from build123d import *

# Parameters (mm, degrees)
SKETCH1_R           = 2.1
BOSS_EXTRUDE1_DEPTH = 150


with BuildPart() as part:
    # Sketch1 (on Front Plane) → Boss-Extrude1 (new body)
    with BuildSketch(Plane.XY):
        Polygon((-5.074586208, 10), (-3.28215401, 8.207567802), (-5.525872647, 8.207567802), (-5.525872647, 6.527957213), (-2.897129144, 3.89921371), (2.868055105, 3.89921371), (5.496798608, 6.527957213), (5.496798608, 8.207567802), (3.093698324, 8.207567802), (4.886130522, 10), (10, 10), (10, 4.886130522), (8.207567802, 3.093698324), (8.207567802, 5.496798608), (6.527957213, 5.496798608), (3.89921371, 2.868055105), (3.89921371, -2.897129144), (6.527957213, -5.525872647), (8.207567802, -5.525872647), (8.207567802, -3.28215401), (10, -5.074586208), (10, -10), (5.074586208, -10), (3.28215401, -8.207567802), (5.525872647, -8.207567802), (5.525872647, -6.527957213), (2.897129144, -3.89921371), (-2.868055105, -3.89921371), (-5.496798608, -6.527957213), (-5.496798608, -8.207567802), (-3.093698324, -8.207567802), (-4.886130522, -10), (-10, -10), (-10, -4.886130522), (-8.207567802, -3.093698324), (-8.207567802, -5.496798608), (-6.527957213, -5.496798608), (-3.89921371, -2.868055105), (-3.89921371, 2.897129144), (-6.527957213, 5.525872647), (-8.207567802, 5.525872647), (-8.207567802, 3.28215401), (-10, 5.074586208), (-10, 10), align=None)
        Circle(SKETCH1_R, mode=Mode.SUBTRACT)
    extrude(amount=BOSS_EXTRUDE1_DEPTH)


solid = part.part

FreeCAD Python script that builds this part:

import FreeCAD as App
import Part
import Sketcher

doc = App.newDocument("Part")
body = doc.addObject("PartDesign::Body", "Body")

# Sketch on XY plane
sketch1 = body.newObject("Sketcher::SketchObject", "Sketch")
sketch1.AttachmentSupport = (doc.getObject("XY_Plane"), [""])
sketch1.MapMode = "FlatFace"
sketch1.addGeometry(Part.LineSegment(App.Vector(-3.3, 8.2, 0), App.Vector(-5.1, 10, 0)), False)
sketch1.addGeometry(Part.LineSegment(App.Vector(-5.1, 10, 0), App.Vector(-10, 10, 0)), False)
sketch1.addGeometry(Part.LineSegment(App.Vector(-10, 10, 0), App.Vector(-10, 5.1, 0)), False)
sketch1.addGeometry(Part.LineSegment(App.Vector(-10, 5.1, 0), App.Vector(-8.2, 3.3, 0)), False)
sketch1.addGeometry(Part.LineSegment(App.Vector(-8.2, 3.3, 0), App.Vector(-8.2, 5.5, 0)), False)
sketch1.addGeometry(Part.LineSegment(App.Vector(-8.2, 5.5, 0), App.Vector(-6.5, 5.5, 0)), False)
sketch1.addGeometry(Part.LineSegment(App.Vector(-6.5, 5.5, 0), App.Vector(-3.9, 2.9, 0)), False)
sketch1.addGeometry(Part.LineSegment(App.Vector(-3.9, 2.9, 0), App.Vector(-3.9, -2.9, 0)), False)
sketch1.addGeometry(Part.LineSegment(App.Vector(-3.9, -2.9, 0), App.Vector(-6.5, -5.5, 0)), False)
sketch1.addGeometry(Part.LineSegment(App.Vector(-6.5, -5.5, 0), App.Vector(-8.2, -5.5, 0)), False)
sketch1.addGeometry(Part.LineSegment(App.Vector(-8.2, -5.5, 0), App.Vector(-8.2, -3.1, 0)), False)
sketch1.addGeometry(Part.LineSegment(App.Vector(-8.2, -3.1, 0), App.Vector(-10, -4.9, 0)), False)
sketch1.addGeometry(Part.LineSegment(App.Vector(-10, -4.9, 0), App.Vector(-10, -10, 0)), False)
sketch1.addGeometry(Part.LineSegment(App.Vector(-10, -10, 0), App.Vector(-4.9, -10, 0)), False)
sketch1.addGeometry(Part.LineSegment(App.Vector(-4.9, -10, 0), App.Vector(-3.1, -8.2, 0)), False)
sketch1.addGeometry(Part.LineSegment(App.Vector(-3.1, -8.2, 0), App.Vector(-5.5, -8.2, 0)), False)
sketch1.addGeometry(Part.LineSegment(App.Vector(-5.5, -8.2, 0), App.Vector(-5.5, -6.5, 0)), False)
sketch1.addGeometry(Part.LineSegment(App.Vector(-5.5, -6.5, 0), App.Vector(-2.9, -3.9, 0)), False)
sketch1.addGeometry(Part.LineSegment(App.Vector(-2.9, -3.9, 0), App.Vector(2.9, -3.9, 0)), False)
sketch1.addGeometry(Part.LineSegment(App.Vector(2.9, -3.9, 0), App.Vector(5.5, -6.5, 0)), False)
sketch1.addGeometry(Part.LineSegment(App.Vector(5.5, -6.5, 0), App.Vector(5.5, -8.2, 0)), False)
sketch1.addGeometry(Part.LineSegment(App.Vector(5.5, -8.2, 0), App.Vector(3.3, -8.2, 0)), False)
sketch1.addGeometry(Part.LineSegment(App.Vector(3.3, -8.2, 0), App.Vector(5.1, -10, 0)), False)
sketch1.addGeometry(Part.LineSegment(App.Vector(5.1, -10, 0), App.Vector(10, -10, 0)), False)
sketch1.addGeometry(Part.LineSegment(App.Vector(10, -10, 0), App.Vector(10, -5.1, 0)), False)
sketch1.addGeometry(Part.LineSegment(App.Vector(10, -5.1, 0), App.Vector(8.2, -3.3, 0)), False)
sketch1.addGeometry(Part.LineSegment(App.Vector(8.2, -3.3, 0), App.Vector(8.2, -5.5, 0)), False)
sketch1.addGeometry(Part.LineSegment(App.Vector(8.2, -5.5, 0), App.Vector(6.5, -5.5, 0)), False)
sketch1.addGeometry(Part.LineSegment(App.Vector(6.5, -5.5, 0), App.Vector(3.9, -2.9, 0)), False)
sketch1.addGeometry(Part.LineSegment(App.Vector(3.9, -2.9, 0), App.Vector(3.9, 2.9, 0)), False)
sketch1.addGeometry(Part.LineSegment(App.Vector(3.9, 2.9, 0), App.Vector(6.5, 5.5, 0)), False)
sketch1.addGeometry(Part.LineSegment(App.Vector(6.5, 5.5, 0), App.Vector(8.2, 5.5, 0)), False)
sketch1.addGeometry(Part.LineSegment(App.Vector(8.2, 5.5, 0), App.Vector(8.2, 3.1, 0)), False)
sketch1.addGeometry(Part.LineSegment(App.Vector(8.2, 3.1, 0), App.Vector(10, 4.9, 0)), False)
sketch1.addGeometry(Part.LineSegment(App.Vector(10, 4.9, 0), App.Vector(10, 10, 0)), False)
sketch1.addGeometry(Part.LineSegment(App.Vector(10, 10, 0), App.Vector(4.9, 10, 0)), False)
sketch1.addGeometry(Part.LineSegment(App.Vector(4.9, 10, 0), App.Vector(3.1, 8.2, 0)), False)
sketch1.addGeometry(Part.LineSegment(App.Vector(3.1, 8.2, 0), App.Vector(5.5, 8.2, 0)), False)
sketch1.addGeometry(Part.LineSegment(App.Vector(5.5, 8.2, 0), App.Vector(5.5, 6.5, 0)), False)
sketch1.addGeometry(Part.LineSegment(App.Vector(5.5, 6.5, 0), App.Vector(2.9, 3.9, 0)), False)
sketch1.addGeometry(Part.LineSegment(App.Vector(2.9, 3.9, 0), App.Vector(-2.9, 3.9, 0)), False)
sketch1.addGeometry(Part.LineSegment(App.Vector(-2.9, 3.9, 0), App.Vector(-5.5, 6.5, 0)), False)
sketch1.addGeometry(Part.LineSegment(App.Vector(-5.5, 6.5, 0), App.Vector(-5.5, 8.2, 0)), False)
sketch1.addGeometry(Part.LineSegment(App.Vector(-5.5, 8.2, 0), App.Vector(-3.3, 8.2, 0)), False)
sketch1.addGeometry(Part.Circle(App.Vector(0, 0, 0), App.Vector(0, 0, 1), 2.1), False)
sketch1.addConstraint(Sketcher.Constraint("Coincident", 0, 2, 1, 1))
sketch1.addConstraint(Sketcher.Constraint("Coincident", 1, 2, 2, 1))
sketch1.addConstraint(Sketcher.Constraint("Coincident", 2, 2, 3, 1))
sketch1.addConstraint(Sketcher.Constraint("Coincident", 3, 2, 4, 1))
sketch1.addConstraint(Sketcher.Constraint("Coincident", 4, 2, 5, 1))
sketch1.addConstraint(Sketcher.Constraint("Coincident", 5, 2, 6, 1))
sketch1.addConstraint(Sketcher.Constraint("Coincident", 6, 2, 7, 1))
sketch1.addConstraint(Sketcher.Constraint("Coincident", 7, 2, 8, 1))
sketch1.addConstraint(Sketcher.Constraint("Coincident", 8, 2, 9, 1))
sketch1.addConstraint(Sketcher.Constraint("Coincident", 9, 2, 10, 1))
sketch1.addConstraint(Sketcher.Constraint("Coincident", 10, 2, 11, 1))
sketch1.addConstraint(Sketcher.Constraint("Coincident", 11, 2, 12, 1))
sketch1.addConstraint(Sketcher.Constraint("Coincident", 12, 2, 13, 1))
sketch1.addConstraint(Sketcher.Constraint("Coincident", 13, 2, 14, 1))
sketch1.addConstraint(Sketcher.Constraint("Coincident", 14, 2, 15, 1))
sketch1.addConstraint(Sketcher.Constraint("Coincident", 15, 2, 16, 1))
sketch1.addConstraint(Sketcher.Constraint("Coincident", 16, 2, 17, 1))
sketch1.addConstraint(Sketcher.Constraint("Coincident", 17, 2, 18, 1))
sketch1.addConstraint(Sketcher.Constraint("Coincident", 18, 2, 19, 1))
sketch1.addConstraint(Sketcher.Constraint("Coincident", 19, 2, 20, 1))
sketch1.addConstraint(Sketcher.Constraint("Coincident", 20, 2, 21, 1))
sketch1.addConstraint(Sketcher.Constraint("Coincident", 21, 2, 22, 1))
sketch1.addConstraint(Sketcher.Constraint("Coincident", 22, 2, 23, 1))
sketch1.addConstraint(Sketcher.Constraint("Coincident", 23, 2, 24, 1))
sketch1.addConstraint(Sketcher.Constraint("Coincident", 24, 2, 25, 1))
sketch1.addConstraint(Sketcher.Constraint("Coincident", 25, 2, 26, 1))
sketch1.addConstraint(Sketcher.Constraint("Coincident", 26, 2, 27, 1))
sketch1.addConstraint(Sketcher.Constraint("Coincident", 27, 2, 28, 1))
sketch1.addConstraint(Sketcher.Constraint("Coincident", 28, 2, 29, 1))
sketch1.addConstraint(Sketcher.Constraint("Coincident", 29, 2, 30, 1))
sketch1.addConstraint(Sketcher.Constraint("Coincident", 30, 2, 31, 1))
sketch1.addConstraint(Sketcher.Constraint("Coincident", 31, 2, 32, 1))
sketch1.addConstraint(Sketcher.Constraint("Coincident", 32, 2, 33, 1))
sketch1.addConstraint(Sketcher.Constraint("Coincident", 33, 2, 34, 1))
sketch1.addConstraint(Sketcher.Constraint("Coincident", 34, 2, 35, 1))
sketch1.addConstraint(Sketcher.Constraint("Coincident", 35, 2, 36, 1))
sketch1.addConstraint(Sketcher.Constraint("Coincident", 36, 2, 37, 1))
sketch1.addConstraint(Sketcher.Constraint("Coincident", 37, 2, 38, 1))
sketch1.addConstraint(Sketcher.Constraint("Coincident", 38, 2, 39, 1))
sketch1.addConstraint(Sketcher.Constraint("Coincident", 39, 2, 40, 1))
sketch1.addConstraint(Sketcher.Constraint("Coincident", 40, 2, 41, 1))
sketch1.addConstraint(Sketcher.Constraint("Coincident", 41, 2, 42, 1))
sketch1.addConstraint(Sketcher.Constraint("Coincident", 42, 2, 43, 1))
sketch1.addConstraint(Sketcher.Constraint("Coincident", 43, 2, 0, 1))
sketch1.addConstraint(Sketcher.Constraint("Horizontal", 1))
sketch1.addConstraint(Sketcher.Constraint("Vertical", 2))
sketch1.addConstraint(Sketcher.Constraint("Vertical", 4))
sketch1.addConstraint(Sketcher.Constraint("Horizontal", 5))
sketch1.addConstraint(Sketcher.Constraint("Vertical", 7))
sketch1.addConstraint(Sketcher.Constraint("Horizontal", 9))
sketch1.addConstraint(Sketcher.Constraint("Vertical", 10))
sketch1.addConstraint(Sketcher.Constraint("Vertical", 12))
sketch1.addConstraint(Sketcher.Constraint("Horizontal", 13))
sketch1.addConstraint(Sketcher.Constraint("Horizontal", 15))
sketch1.addConstraint(Sketcher.Constraint("Vertical", 16))
sketch1.addConstraint(Sketcher.Constraint("Horizontal", 18))
sketch1.addConstraint(Sketcher.Constraint("Vertical", 20))
sketch1.addConstraint(Sketcher.Constraint("Horizontal", 21))
sketch1.addConstraint(Sketcher.Constraint("Horizontal", 23))
sketch1.addConstraint(Sketcher.Constraint("Vertical", 24))
sketch1.addConstraint(Sketcher.Constraint("Vertical", 26))
sketch1.addConstraint(Sketcher.Constraint("Horizontal", 27))
sketch1.addConstraint(Sketcher.Constraint("Vertical", 29))
sketch1.addConstraint(Sketcher.Constraint("Horizontal", 31))
sketch1.addConstraint(Sketcher.Constraint("Vertical", 32))
sketch1.addConstraint(Sketcher.Constraint("Vertical", 34))
sketch1.addConstraint(Sketcher.Constraint("Horizontal", 35))
sketch1.addConstraint(Sketcher.Constraint("Horizontal", 37))
sketch1.addConstraint(Sketcher.Constraint("Vertical", 38))
sketch1.addConstraint(Sketcher.Constraint("Horizontal", 40))
sketch1.addConstraint(Sketcher.Constraint("Vertical", 42))
sketch1.addConstraint(Sketcher.Constraint("Horizontal", 43))
sketch1.addConstraint(Sketcher.Constraint("Coincident", 44, 3, -1, 1))
sketch1.addConstraint(Sketcher.Constraint("Symmetric", 0, 2, 22, 2, -1, 1))
sketch1.addConstraint(Sketcher.Constraint("Symmetric", 2, 2, 24, 2, -1, 1))
sketch1.addConstraint(Sketcher.Constraint("Symmetric", 3, 2, 25, 2, -1, 1))
sketch1.addConstraint(Sketcher.Constraint("Symmetric", 5, 2, 27, 2, -1, 1))
sketch1.addConstraint(Sketcher.Constraint("Symmetric", 6, 2, 28, 2, -1, 1))
sketch1.addConstraint(Sketcher.Constraint("Symmetric", 8, 2, 30, 2, -1, 1))
sketch1.addConstraint(Sketcher.Constraint("Symmetric", 10, 2, 32, 2, -1, 1))
sketch1.addConstraint(Sketcher.Constraint("Symmetric", 11, 2, 33, 2, -1, 1))
sketch1.addConstraint(Sketcher.Constraint("Symmetric", 13, 2, 35, 2, -1, 1))
sketch1.addConstraint(Sketcher.Constraint("Symmetric", 14, 2, 36, 2, -1, 1))
sketch1.addConstraint(Sketcher.Constraint("Symmetric", 16, 2, 38, 2, -1, 1))
sketch1.addConstraint(Sketcher.Constraint("Symmetric", 17, 2, 39, 2, -1, 1))
sketch1.addConstraint(Sketcher.Constraint("Symmetric", 19, 2, 41, 2, -1, 1))
sketch1.addConstraint(Sketcher.Constraint("Symmetric", 21, 2, 43, 2, -1, 1))
sketch1.addConstraint(Sketcher.Constraint("Symmetric", 12, 2, 23, 2, -2))
sketch1.addConstraint(Sketcher.Constraint("Parallel", 0, 3))
sketch1.addConstraint(Sketcher.Constraint("Parallel", 3, 6))
sketch1.addConstraint(Sketcher.Constraint("Perpendicular", 6, 8))
sketch1.addConstraint(Sketcher.Constraint("Parallel", 8, 11))
sketch1.addConstraint(Sketcher.Constraint("Parallel", 11, 14))
sketch1.addConstraint(Sketcher.Constraint("Parallel", 14, 17))
sketch1.addConstraint(Sketcher.Constraint("Perpendicular", 17, 19))
sketch1.addConstraint(Sketcher.Constraint("Perpendicular", 28, 30))
sketch1.addConstraint(Sketcher.Constraint("Perpendicular", 39, 41))
sketch1.addConstraint(Sketcher.Constraint("Horizontal", 16, 2, 19, 2))
sketch1.addConstraint(Sketcher.Constraint("Horizontal", 15, 2, 20, 2))
sketch1.addConstraint(Sketcher.Constraint("Vertical", 5, 2, 8, 2))
sketch1.addConstraint(Sketcher.Constraint("Vertical", 4, 2, 9, 2))
sketch1.addConstraint(Sketcher.Constraint("Equal", 23, 2))
sketch1.addConstraint(Sketcher.Constraint("Equal", 43, 4))
sketch1.addConstraint(Sketcher.Constraint("Equal", 40, 7))
sketch1.addConstraint(Sketcher.Constraint("Equal", 37, 10))
sketch1.addConstraint(Sketcher.Constraint("Equal", 35, 12))
sketch1.addConstraint(Sketcher.Constraint("Equal", 31, 16))
sketch1.addConstraint(Sketcher.Constraint("Equal", 0, 3))
sketch1.addConstraint(Sketcher.Constraint("Equal", 6, 8))
sketch1.addConstraint(Sketcher.Constraint("Equal", 8, 17))
sketch1.addConstraint(Sketcher.Constraint("Diameter", 44, 4.2))
sketch1.addConstraint(Sketcher.Constraint("DistanceY", -1, 1, 0, 2, 10.0))
sketch1.addConstraint(Sketcher.Constraint("DistanceX", 15, 2, 15, 1, 2.4031))
sketch1.addConstraint(Sketcher.Constraint("DistanceX", 5, 1, 5, 2, 1.679611))
sketch1.addConstraint(Sketcher.Constraint("DistanceX", 13, 1, 13, 2, 5.113869))
sketch1.addConstraint(Sketcher.Constraint("DistanceX", 21, 2, 21, 1, 2.243719))
sketch1.addConstraint(Sketcher.Constraint("DistanceY", 8, 2, -1, 1, 5.496799))
sketch1.addConstraint(Sketcher.Constraint("DistanceX", 1, 2, 1, 1, 4.925414))
sketch1.addConstraint(Sketcher.Constraint("DistanceX", 18, 1, 18, 2, 5.765184))
pad1 = body.newObject("PartDesign::Pad", "Pad")
pad1.Profile = sketch1
pad1.Length = 150

doc.recompute()
